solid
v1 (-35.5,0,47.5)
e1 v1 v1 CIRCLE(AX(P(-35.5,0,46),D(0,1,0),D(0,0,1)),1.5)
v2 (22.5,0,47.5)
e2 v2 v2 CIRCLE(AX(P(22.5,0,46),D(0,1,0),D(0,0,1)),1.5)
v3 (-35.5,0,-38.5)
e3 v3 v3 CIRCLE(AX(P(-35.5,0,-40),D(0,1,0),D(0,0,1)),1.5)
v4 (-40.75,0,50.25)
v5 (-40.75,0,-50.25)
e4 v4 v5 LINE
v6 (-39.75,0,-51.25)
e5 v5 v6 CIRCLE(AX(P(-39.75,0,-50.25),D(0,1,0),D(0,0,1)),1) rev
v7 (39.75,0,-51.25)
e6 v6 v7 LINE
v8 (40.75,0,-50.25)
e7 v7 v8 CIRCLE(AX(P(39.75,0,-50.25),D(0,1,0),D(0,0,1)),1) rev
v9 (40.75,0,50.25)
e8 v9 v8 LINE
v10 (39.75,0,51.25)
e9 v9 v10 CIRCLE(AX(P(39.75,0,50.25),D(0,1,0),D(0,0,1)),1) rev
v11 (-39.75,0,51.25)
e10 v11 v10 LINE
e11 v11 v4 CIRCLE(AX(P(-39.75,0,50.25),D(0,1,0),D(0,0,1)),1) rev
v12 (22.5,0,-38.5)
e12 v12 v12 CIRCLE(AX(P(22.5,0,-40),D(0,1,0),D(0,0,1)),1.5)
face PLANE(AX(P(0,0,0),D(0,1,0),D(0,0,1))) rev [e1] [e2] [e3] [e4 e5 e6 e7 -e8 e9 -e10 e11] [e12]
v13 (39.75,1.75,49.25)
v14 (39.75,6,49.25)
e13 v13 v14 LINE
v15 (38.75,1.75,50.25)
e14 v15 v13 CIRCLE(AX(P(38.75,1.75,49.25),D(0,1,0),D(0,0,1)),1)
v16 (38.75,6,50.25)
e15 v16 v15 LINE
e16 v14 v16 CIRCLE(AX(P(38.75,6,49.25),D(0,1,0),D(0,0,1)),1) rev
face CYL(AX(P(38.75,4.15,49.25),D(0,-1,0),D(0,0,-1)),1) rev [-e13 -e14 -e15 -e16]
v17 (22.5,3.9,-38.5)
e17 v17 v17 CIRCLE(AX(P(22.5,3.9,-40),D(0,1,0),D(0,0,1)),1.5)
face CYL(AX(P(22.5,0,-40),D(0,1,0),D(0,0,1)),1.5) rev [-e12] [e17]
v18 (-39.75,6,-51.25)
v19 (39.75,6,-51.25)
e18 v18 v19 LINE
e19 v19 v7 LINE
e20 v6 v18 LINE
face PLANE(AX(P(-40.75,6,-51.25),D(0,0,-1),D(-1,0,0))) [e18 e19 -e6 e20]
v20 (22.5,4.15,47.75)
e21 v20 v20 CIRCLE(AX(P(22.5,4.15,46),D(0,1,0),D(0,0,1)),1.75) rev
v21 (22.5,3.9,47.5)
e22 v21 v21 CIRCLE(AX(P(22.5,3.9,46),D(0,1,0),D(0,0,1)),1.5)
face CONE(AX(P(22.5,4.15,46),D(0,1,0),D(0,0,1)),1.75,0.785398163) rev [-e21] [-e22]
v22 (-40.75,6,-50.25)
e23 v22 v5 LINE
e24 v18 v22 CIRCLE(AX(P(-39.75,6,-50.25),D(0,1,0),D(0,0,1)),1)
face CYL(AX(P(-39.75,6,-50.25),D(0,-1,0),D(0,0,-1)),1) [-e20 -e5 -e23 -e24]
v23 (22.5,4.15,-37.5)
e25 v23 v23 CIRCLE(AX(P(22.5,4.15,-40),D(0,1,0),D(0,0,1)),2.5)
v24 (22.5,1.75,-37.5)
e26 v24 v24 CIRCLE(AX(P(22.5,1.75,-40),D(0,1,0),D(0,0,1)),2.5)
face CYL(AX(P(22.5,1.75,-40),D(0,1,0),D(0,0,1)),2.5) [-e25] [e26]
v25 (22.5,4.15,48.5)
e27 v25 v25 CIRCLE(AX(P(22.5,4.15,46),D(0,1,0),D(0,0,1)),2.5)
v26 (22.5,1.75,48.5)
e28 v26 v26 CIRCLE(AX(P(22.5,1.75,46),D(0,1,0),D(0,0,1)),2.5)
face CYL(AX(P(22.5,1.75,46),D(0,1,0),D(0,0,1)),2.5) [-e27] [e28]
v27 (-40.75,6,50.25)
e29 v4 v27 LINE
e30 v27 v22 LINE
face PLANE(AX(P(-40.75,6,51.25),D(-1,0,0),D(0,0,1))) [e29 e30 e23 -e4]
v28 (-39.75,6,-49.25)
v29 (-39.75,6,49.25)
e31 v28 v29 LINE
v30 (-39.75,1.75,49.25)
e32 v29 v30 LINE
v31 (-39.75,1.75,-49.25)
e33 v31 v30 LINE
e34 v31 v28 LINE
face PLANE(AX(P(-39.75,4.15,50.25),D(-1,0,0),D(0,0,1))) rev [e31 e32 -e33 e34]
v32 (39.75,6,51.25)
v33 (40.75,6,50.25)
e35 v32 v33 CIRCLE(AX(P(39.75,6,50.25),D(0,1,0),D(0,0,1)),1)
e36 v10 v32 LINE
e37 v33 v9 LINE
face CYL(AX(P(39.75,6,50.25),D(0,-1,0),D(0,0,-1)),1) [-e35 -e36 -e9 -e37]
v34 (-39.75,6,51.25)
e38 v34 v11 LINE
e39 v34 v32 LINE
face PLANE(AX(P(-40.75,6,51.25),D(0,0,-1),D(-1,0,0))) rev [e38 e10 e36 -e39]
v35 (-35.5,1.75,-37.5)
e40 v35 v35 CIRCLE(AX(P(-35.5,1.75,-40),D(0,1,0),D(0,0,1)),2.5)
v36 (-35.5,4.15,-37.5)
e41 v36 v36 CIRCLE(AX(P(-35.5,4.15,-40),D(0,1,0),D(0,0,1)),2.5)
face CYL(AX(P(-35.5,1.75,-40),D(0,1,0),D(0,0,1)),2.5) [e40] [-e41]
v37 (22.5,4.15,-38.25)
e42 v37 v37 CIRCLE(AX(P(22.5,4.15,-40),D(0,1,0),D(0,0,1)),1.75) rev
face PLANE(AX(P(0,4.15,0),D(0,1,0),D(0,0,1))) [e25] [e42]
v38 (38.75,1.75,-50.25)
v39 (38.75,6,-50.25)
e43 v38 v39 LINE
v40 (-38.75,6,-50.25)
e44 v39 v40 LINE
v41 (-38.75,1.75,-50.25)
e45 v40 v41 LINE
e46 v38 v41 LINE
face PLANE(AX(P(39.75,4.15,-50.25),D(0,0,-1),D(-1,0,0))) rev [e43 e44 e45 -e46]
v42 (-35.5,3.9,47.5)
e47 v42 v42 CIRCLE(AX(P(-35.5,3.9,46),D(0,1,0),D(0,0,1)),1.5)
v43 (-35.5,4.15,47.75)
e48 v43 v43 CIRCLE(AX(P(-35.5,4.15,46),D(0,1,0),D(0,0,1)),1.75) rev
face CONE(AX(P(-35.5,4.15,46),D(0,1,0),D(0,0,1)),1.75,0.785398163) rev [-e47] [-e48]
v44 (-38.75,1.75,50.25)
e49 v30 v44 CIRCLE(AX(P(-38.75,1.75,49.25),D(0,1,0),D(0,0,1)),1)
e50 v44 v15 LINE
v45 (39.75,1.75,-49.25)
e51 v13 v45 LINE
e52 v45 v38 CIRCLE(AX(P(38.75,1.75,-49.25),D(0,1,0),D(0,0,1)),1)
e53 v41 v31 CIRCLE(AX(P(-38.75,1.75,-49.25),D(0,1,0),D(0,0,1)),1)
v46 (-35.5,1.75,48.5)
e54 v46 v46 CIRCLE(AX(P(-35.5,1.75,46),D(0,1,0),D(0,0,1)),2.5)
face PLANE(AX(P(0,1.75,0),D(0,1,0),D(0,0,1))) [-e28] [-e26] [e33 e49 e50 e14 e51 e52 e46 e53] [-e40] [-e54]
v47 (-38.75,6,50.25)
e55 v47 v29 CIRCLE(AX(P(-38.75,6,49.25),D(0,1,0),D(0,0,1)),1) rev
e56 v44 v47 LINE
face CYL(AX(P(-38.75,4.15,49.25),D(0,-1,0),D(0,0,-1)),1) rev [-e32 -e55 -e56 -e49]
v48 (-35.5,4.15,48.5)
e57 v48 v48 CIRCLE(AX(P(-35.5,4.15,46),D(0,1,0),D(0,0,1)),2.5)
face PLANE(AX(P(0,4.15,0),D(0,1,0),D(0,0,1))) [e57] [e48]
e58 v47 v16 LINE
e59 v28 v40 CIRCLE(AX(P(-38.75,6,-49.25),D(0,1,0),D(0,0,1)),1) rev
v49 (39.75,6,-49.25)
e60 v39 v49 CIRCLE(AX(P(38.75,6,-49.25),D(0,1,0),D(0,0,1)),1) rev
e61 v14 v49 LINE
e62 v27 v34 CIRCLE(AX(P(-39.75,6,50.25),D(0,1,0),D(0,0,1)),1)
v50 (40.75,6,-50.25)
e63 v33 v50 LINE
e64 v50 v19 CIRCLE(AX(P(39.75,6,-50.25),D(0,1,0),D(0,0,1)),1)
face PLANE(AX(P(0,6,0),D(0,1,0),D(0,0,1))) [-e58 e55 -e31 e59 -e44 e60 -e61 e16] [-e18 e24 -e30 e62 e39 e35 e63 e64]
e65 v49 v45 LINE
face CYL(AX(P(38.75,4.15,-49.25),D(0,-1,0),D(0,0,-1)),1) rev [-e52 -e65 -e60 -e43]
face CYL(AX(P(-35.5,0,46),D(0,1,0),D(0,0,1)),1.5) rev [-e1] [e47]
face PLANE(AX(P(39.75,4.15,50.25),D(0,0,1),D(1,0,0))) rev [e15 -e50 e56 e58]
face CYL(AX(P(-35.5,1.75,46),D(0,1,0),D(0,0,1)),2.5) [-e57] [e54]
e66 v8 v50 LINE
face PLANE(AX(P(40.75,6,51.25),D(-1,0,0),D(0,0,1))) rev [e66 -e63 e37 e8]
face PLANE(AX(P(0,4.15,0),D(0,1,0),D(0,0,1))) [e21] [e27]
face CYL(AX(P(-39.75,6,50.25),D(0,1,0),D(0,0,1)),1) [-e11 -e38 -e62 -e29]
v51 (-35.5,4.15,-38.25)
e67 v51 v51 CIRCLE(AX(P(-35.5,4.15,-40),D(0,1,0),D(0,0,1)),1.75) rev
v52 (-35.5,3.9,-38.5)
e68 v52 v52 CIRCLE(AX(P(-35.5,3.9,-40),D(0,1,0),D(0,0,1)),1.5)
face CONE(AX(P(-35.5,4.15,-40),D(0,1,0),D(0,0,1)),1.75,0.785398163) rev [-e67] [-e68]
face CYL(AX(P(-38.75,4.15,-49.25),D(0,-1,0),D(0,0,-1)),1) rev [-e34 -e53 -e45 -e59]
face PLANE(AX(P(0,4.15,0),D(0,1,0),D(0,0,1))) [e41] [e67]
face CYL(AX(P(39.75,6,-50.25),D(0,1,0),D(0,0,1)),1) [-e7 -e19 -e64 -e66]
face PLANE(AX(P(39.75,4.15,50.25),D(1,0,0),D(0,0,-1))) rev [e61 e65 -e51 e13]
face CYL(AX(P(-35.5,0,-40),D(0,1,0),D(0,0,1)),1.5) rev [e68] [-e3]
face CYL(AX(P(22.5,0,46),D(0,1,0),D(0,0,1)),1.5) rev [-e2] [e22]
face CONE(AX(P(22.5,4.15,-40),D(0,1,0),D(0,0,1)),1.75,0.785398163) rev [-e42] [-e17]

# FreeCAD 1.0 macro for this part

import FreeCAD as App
import Part
import Sketcher
Q = App.Units.Quantity


def edges_at(feature, points):
    """Names of the edges that pass closest to the given points."""
    edges = feature.Shape.Edges
    near = lambda p: min(range(len(edges)), key=lambda i: edges[i].distToShape(Part.Vertex(*p))[0])
    return sorted({f"Edge{near(p) + 1}" for p in points})

doc = App.newDocument("Part")
params = doc.addObject("Spreadsheet::Sheet", "Params")
for row, (alias, value) in enumerate([
    ("sketch1_width", "81.5 mm"),
    ("sketch1_height", "102.5 mm"),
    ("pad1_length", "6 mm"),
    ("sketch2_diameter", "3 mm"),
    ("sketch3_width", "79.5 mm"),
    ("sketch3_height", "100.5 mm"),
    ("pocket2_length", "1.85 mm"),
    ("sketch4_diameter", "5 mm"),
    ("sketch4_width", "79.5 mm"),
    ("sketch4_height", "100.5 mm"),
    ("pocket3_length", "2.4 mm"),
    ("fillet_radius", "1 mm"),
    ("chamfer_size", "0.25 mm"),
], start=1):
    params.set(f"A{row}", alias)
    params.set(f"B{row}", "=" + value)
    params.setAlias(f"B{row}", alias)

body = doc.addObject("PartDesign::Body", "Body")

sketch1 = body.newObject("Sketcher::SketchObject", "Sketch")
sketch1.AttachmentSupport = (doc.getObject("XZ_Plane"), [""])
sketch1.MapMode = "FlatFace"
sketch1.addGeometry([
    Part.LineSegment(App.Vector(-40.75, -51.25, 0), App.Vector(-40.75, 51.25, 0)),
    Part.LineSegment(App.Vector(-40.75, 51.25, 0), App.Vector(40.75, 51.25, 0)),
    Part.LineSegment(App.Vector(40.75, 51.25, 0), App.Vector(40.75, -51.25, 0)),
    Part.LineSegment(App.Vector(40.75, -51.25, 0), App.Vector(-40.75, -51.25, 0)),
], False)
sketch1.addConstraint([
    Sketcher.Constraint("Coincident", 0, 2, 1, 1),
    Sketcher.Constraint("Coincident", 1, 2, 2, 1),
    Sketcher.Constraint("Coincident", 2, 2, 3, 1),
    Sketcher.Constraint("Coincident", 3, 2, 0, 1),
    Sketcher.Constraint("Vertical", 0),
    Sketcher.Constraint("Horizontal", 1),
    Sketcher.Constraint("Vertical", 2),
    Sketcher.Constraint("Horizontal", 3),
    Sketcher.Constraint("Symmetric", 0, 2, 2, 2, -1, 1),
    Sketcher.Constraint("DistanceX", 1, 1, 1, 2, Q("81.5 mm")),
    Sketcher.Constraint("DistanceY", 0, 1, 0, 2, Q("102.5 mm")),
])
sketch1.setExpression("Constraints[9]", "Params.sketch1_width")
sketch1.setExpression("Constraints[10]", "Params.sketch1_height")
pad1 = body.newObject("PartDesign::Pad", "Pad")
pad1.Profile = sketch1
pad1.setExpression("Length", "Params.pad1_length")
pad1.Reversed = True

sketch2 = body.newObject("Sketcher::SketchObject", "Sketch001")
sketch2.AttachmentSupport = (doc.getObject("XZ_Plane"), [""])
sketch2.MapMode = "FlatFace"
sketch2.AttachmentOffset = App.Placement(App.Vector(0, 0, -6), App.Rotation())
sketch2.addGeometry([
    Part.Circle(App.Vector(-35.5, 46, 0), App.Vector(0, 0, 1), 1.5),
    Part.Circle(App.Vector(-35.5, -40, 0), App.Vector(0, 0, 1), 1.5),
    Part.Circle(App.Vector(22.5, 46, 0), App.Vector(0, 0, 1), 1.5),
    Part.Circle(App.Vector(22.5, -40, 0), App.Vector(0, 0, 1), 1.5),
], False)
sketch2.addConstraint([
    Sketcher.Constraint("Equal", 0, 1),
    Sketcher.Constraint("Equal", 1, 2),
    Sketcher.Constraint("Equal", 2, 3),
    Sketcher.Constraint("Horizontal", 0, 3, 2, 3),
    Sketcher.Constraint("Horizontal", 1, 3, 3, 3),
    Sketcher.Constraint("Vertical", 0, 3, 1, 3),
    Sketcher.Constraint("Vertical", 2, 3, 3, 3),
    Sketcher.Constraint("Diameter", 0, Q("3 mm")),
    Sketcher.Constraint("DistanceY", -1, 1, 0, 3, Q("46 mm")),
    Sketcher.Constraint("DistanceY", 1, 3, -1, 1, Q("40 mm")),
    Sketcher.Constraint("DistanceX", 0, 3, 2, 3, Q("58 mm")),
    Sketcher.Constraint("DistanceX", 0, 3, -1, 1, Q("35.5 mm")),
])
sketch2.setExpression("Constraints[7]", "Params.sketch2_diameter")
pocket1 = body.newObject("PartDesign::Pocket", "Pocket")
pocket1.Profile = sketch2
pocket1.Type = "ThroughAll"
pocket1.Reversed = True

sketch3 = body.newObject("Sketcher::SketchObject", "Sketch002")
sketch3.AttachmentSupport = (doc.getObject("XZ_Plane"), [""])
sketch3.MapMode = "FlatFace"
sketch3.AttachmentOffset = App.Placement(App.Vector(0, 0, -6), App.Rotation())
sketch3.addGeometry([
    Part.LineSegment(App.Vector(-39.75, -50.25, 0), App.Vector(-39.75, 50.25, 0)),
    Part.LineSegment(App.Vector(-39.75, 50.25, 0), App.Vector(39.75, 50.25, 0)),
    Part.LineSegment(App.Vector(39.75, 50.25, 0), App.Vector(39.75, -50.25, 0)),
    Part.LineSegment(App.Vector(39.75, -50.25, 0), App.Vector(-39.75, -50.25, 0)),
], False)
sketch3.addConstraint([
    Sketcher.Constraint("Coincident", 0, 2, 1, 1),
    Sketcher.Constraint("Coincident", 1, 2, 2, 1),
    Sketcher.Constraint("Coincident", 2, 2, 3, 1),
    Sketcher.Constraint("Coincident", 3, 2, 0, 1),
    Sketcher.Constraint("Vertical", 0),
    Sketcher.Constraint("Horizontal", 1),
    Sketcher.Constraint("Vertical", 2),
    Sketcher.Constraint("Horizontal", 3),
    Sketcher.Constraint("Symmetric", 0, 2, 2, 2, -1, 1),
    Sketcher.Constraint("DistanceX", 1, 1, 1, 2, Q("79.5 mm")),
    Sketcher.Constraint("DistanceY", 0, 1, 0, 2, Q("100.5 mm")),
])
sketch3.setExpression("Constraints[9]", "Params.sketch3_width")
sketch3.setExpression("Constraints[10]", "Params.sketch3_height")
pocket2 = body.newObject("PartDesign::Pocket", "Pocket001")
pocket2.Profile = sketch3
pocket2.setExpression("Length", "Params.pocket2_length")
pocket2.Reversed = True

sketch4 = body.newObject("Sketcher::SketchObject", "Sketch003")
sketch4.AttachmentSupport = (doc.getObject("XZ_Plane"), [""])
sketch4.MapMode = "FlatFace"
sketch4.AttachmentOffset = App.Placement(App.Vector(0, 0, -4.15), App.Rotation())
sketch4.addGeometry([
    Part.LineSegment(App.Vector(-39.75, -50.25, 0), App.Vector(-39.75, 50.25, 0)),
    Part.LineSegment(App.Vector(-39.75, 50.25, 0), App.Vector(39.75, 50.25, 0)),
    Part.LineSegment(App.Vector(39.75, 50.25, 0), App.Vector(39.75, -50.25, 0)),
    Part.LineSegment(App.Vector(39.75, -50.25, 0), App.Vector(-39.75, -50.25, 0)),
    Part.Circle(App.Vector(-35.5, 46, 0), App.Vector(0, 0, 1), 2.5),
    Part.Circle(App.Vector(22.5, 46, 0), App.Vector(0, 0, 1), 2.5),
    Part.Circle(App.Vector(-35.5, -40, 0), App.Vector(0, 0, 1), 2.5),
    Part.Circle(App.Vector(22.5, -40, 0), App.Vector(0, 0, 1), 2.5),
], False)
sketch4.addConstraint([
    Sketcher.Constraint("Coincident", 0, 2, 1, 1),
    Sketcher.Constraint("Coincident", 1, 2, 2, 1),
    Sketcher.Constraint("Coincident", 2, 2, 3, 1),
    Sketcher.Constraint("Coincident", 3, 2, 0, 1),
    Sketcher.Constraint("Vertical", 0),
    Sketcher.Constraint("Horizontal", 1),
    Sketcher.Constraint("Vertical", 2),
    Sketcher.Constraint("Horizontal", 3),
    Sketcher.Constraint("Equal", 4, 5),
    Sketcher.Constraint("Equal", 5, 6),
    Sketcher.Constraint("Equal", 6, 7),
    Sketcher.Constraint("Symmetric", 0, 2, 2, 2, -1, 1),
    Sketcher.Constraint("Horizontal", 4, 3, 5, 3),
    Sketcher.Constraint("Horizontal", 6, 3, 7, 3),
    Sketcher.Constraint("Vertical", 4, 3, 6, 3),
    Sketcher.Constraint("Vertical", 5, 3, 7, 3),
    Sketcher.Constraint("Diameter", 4, Q("5 mm")),
    Sketcher.Constraint("DistanceX", 1, 1, 1, 2, Q("79.5 mm")),
    Sketcher.Constraint("DistanceY", 0, 1, 0, 2, Q("100.5 mm")),
    Sketcher.Constraint("DistanceY", -1, 1, 4, 3, Q("46 mm")),
    Sketcher.Constraint("DistanceY", 6, 3, -1, 1, Q("40 mm")),
    Sketcher.Constraint("DistanceX", 4, 3, 5, 3, Q("58 mm")),
    Sketcher.Constraint("DistanceX", 4, 3, -1, 1, Q("35.5 mm")),
])
sketch4.setExpression("Constraints[16]", "Params.sketch4_diameter")
sketch4.setExpression("Constraints[17]", "Params.sketch4_width")
sketch4.setExpression("Constraints[18]", "Params.sketch4_height")
pocket3 = body.newObject("PartDesign::Pocket", "Pocket002")
pocket3.Profile = sketch4
pocket3.setExpression("Length", "Params.pocket3_length")
pocket3.Reversed = True
doc.recompute()

fillet = body.newObject("PartDesign::Fillet", "Fillet")
fillet.Base = (pocket3, edges_at(pocket3, [
    (-39.75, 3.875, 50.25),
    (-39.75, 3.875, -50.25),
    (39.75, 3.875, -50.25),
    (39.75, 3.875, 50.25),
    (-40.75, 3, 51.25),
    (-40.75, 3, -51.25),
    (40.75, 3, -51.25),
    (40.75, 3, 51.25),
]))
fillet.setExpression("Radius", "Params.fillet_radius")
doc.recompute()

chamfer = body.newObject("PartDesign::Chamfer", "Chamfer")
chamfer.Base = (fillet, edges_at(fillet, [
    (-37, 4.15, 46),
    (21, 4.15, -40),
    (21, 4.15, 46),
    (-37, 4.15, -40),
]))
chamfer.setExpression("Size", "Params.chamfer_size")

doc.recompute()
